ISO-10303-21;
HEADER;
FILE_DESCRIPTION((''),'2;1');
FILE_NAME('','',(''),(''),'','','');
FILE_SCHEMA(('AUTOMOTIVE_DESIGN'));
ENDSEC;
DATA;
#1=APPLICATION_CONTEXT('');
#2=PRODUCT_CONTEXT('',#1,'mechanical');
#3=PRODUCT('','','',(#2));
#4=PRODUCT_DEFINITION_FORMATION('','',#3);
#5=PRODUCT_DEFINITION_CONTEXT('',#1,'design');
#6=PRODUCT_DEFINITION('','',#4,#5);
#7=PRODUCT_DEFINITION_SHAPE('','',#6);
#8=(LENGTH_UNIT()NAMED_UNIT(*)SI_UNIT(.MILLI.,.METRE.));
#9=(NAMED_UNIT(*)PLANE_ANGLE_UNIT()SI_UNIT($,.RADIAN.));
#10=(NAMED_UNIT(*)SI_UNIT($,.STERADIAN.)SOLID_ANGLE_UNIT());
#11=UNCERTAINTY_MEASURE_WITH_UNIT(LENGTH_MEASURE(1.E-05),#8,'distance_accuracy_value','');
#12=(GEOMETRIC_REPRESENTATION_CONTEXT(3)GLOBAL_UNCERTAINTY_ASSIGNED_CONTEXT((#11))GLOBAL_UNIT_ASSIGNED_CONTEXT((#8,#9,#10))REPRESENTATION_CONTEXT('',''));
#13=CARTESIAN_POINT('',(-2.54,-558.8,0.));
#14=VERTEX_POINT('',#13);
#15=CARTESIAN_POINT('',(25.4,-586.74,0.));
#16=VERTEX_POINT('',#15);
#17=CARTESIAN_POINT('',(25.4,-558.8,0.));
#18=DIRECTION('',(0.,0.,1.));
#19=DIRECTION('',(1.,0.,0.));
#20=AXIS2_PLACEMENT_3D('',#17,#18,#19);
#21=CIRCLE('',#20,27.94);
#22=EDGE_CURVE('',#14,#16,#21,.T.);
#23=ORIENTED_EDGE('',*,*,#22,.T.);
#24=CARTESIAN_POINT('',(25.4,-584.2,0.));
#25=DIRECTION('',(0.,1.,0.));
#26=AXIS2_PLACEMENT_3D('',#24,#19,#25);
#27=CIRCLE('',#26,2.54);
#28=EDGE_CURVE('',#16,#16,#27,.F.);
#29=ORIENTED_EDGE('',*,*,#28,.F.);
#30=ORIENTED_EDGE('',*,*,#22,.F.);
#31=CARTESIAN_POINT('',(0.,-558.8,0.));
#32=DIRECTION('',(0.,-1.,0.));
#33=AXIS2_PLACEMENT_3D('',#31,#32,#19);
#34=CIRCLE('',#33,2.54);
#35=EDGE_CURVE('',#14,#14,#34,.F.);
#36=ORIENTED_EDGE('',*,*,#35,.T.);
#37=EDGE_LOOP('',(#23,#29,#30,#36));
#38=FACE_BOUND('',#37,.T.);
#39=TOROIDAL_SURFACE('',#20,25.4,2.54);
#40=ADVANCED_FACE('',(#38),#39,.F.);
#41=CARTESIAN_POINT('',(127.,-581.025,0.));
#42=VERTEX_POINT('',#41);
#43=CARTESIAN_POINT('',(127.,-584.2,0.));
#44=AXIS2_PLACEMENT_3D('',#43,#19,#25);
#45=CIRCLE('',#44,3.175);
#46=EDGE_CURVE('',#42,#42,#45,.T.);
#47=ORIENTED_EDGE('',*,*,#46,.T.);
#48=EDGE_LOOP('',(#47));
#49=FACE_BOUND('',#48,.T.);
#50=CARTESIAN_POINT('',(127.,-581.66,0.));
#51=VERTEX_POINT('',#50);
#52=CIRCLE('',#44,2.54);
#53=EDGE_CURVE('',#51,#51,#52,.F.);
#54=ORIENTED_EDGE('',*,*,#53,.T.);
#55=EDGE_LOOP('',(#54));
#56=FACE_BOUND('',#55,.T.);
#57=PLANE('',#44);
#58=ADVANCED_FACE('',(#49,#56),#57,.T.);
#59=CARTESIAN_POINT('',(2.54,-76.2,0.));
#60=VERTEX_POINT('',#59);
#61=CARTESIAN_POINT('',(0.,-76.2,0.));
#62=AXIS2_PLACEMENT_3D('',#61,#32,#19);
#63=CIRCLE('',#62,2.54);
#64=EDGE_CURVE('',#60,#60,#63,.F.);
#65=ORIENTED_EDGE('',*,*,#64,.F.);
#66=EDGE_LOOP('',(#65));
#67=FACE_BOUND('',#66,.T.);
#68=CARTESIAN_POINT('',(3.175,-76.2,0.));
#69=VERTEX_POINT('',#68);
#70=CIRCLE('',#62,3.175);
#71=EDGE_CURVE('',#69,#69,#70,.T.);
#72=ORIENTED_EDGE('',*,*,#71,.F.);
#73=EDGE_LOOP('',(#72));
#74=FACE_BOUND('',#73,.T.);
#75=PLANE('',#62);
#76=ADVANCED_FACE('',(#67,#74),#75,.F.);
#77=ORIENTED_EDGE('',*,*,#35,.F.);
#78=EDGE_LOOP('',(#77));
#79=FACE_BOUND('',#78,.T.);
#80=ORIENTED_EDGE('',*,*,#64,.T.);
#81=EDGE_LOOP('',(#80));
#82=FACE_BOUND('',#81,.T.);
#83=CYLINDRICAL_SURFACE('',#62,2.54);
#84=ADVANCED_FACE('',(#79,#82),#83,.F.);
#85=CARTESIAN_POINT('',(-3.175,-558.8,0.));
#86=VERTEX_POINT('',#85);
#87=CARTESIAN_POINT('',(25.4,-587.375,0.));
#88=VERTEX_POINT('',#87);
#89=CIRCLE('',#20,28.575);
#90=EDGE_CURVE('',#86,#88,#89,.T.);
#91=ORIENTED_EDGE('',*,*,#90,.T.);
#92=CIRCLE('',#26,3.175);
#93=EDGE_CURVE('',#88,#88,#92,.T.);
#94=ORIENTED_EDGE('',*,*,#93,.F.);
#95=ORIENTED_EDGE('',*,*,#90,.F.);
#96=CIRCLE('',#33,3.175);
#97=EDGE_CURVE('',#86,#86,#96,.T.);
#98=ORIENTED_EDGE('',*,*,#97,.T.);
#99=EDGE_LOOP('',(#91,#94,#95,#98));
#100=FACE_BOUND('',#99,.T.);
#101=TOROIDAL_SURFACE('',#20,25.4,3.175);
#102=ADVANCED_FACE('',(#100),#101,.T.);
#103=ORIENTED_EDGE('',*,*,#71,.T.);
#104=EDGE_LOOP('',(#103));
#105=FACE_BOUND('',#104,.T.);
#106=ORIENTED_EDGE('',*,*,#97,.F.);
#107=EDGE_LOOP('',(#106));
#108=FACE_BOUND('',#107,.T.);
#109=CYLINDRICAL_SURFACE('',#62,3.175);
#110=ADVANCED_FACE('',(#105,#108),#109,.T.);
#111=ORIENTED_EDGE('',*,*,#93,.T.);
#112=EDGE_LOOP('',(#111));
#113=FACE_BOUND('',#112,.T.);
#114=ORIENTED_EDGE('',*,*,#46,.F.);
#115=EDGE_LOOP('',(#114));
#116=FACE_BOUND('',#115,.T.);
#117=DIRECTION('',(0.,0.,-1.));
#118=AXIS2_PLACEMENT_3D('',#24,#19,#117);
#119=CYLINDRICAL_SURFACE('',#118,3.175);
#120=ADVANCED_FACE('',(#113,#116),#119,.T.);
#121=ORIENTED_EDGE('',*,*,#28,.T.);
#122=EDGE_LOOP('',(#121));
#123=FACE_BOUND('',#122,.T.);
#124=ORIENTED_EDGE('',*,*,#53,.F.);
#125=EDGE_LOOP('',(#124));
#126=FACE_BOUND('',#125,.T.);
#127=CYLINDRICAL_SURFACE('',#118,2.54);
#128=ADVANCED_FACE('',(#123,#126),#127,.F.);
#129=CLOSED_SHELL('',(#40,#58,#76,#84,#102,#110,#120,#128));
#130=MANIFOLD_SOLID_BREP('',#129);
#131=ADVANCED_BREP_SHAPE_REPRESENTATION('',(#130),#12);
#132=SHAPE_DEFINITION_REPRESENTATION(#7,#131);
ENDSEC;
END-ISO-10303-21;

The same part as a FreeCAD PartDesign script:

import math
import FreeCAD as App
import Part
import Sketcher
from FreeCAD import Vector
Q = App.Units.Quantity

doc = App.newDocument("Part")
body = doc.addObject("PartDesign::Body", "Body")

sketch1 = doc.addObject("Sketcher::SketchObject", "Sketch")
body.addObject(sketch1)
sketch1.AttachmentSupport = (doc.XZ_Plane, [""])
sketch1.MapMode = "FlatFace"
sketch1.AttachmentOffset = App.Placement(Vector(0, 0, 3 * 25.4), App.Rotation())
sketch1.addGeometry(Part.Circle(Vector(0, 0, 0), Vector(0, 0, 1), 3.2), False)
sketch1.addGeometry(Part.Circle(Vector(0, 0, 0), Vector(0, 0, 1), 2.5), False)
sketch1.addConstraint(Sketcher.Constraint("Coincident", 0, 3, -1, 1))
sketch1.addConstraint(Sketcher.Constraint("Coincident", 1, 3, -1, 1))
sketch1.addConstraint(Sketcher.Constraint("Diameter", 1, Q("0.2 in")))
sketch1.addConstraint(Sketcher.Constraint("Diameter", 0, Q("0.25 in")))

sketch2 = doc.addObject("Sketcher::SketchObject", "Sketch001")
body.addObject(sketch2)
sketch2.AttachmentSupport = (doc.XY_Plane, [""])
sketch2.MapMode = "FlatFace"
sketch2.addGeometry(Part.LineSegment(Vector(0, -76, 0), Vector(0, -559, 0)), False)
sketch2.addGeometry(Part.ArcOfCircle(Part.Circle(Vector(25, -559, 0), Vector(0, 0, 1), 25), math.radians(180), math.radians(270)), False)
sketch2.addGeometry(Part.LineSegment(Vector(25, -584, 0), Vector(127, -584, 0)), False)
sketch2.addConstraint(Sketcher.Constraint("Tangent", 0, 2, 1, 1))
sketch2.addConstraint(Sketcher.Constraint("Tangent", 1, 2, 2, 1))
sketch2.addConstraint(Sketcher.Constraint("Vertical", 0))
sketch2.addConstraint(Sketcher.Constraint("Horizontal", 2))
sketch2.addConstraint(Sketcher.Constraint("PointOnObject", 0, 1, -2))
sketch2.addConstraint(Sketcher.Constraint("Radius", 1, Q("1 in")))
sketch2.addConstraint(Sketcher.Constraint("DistanceX", 2, 1, 2, 2, Q("4 in")))
sketch2.addConstraint(Sketcher.Constraint("DistanceY", 0, 2, 0, 1, Q("19 in")))
sketch2.addConstraint(Sketcher.Constraint("DistanceY", 1, 3, -1, 1, Q("22 in")))
doc.recompute()

additivepipe = doc.addObject("PartDesign::AdditivePipe", "AdditivePipe")
body.addObject(additivepipe)
additivepipe.Profile = sketch1
additivepipe.Spine = (sketch2, ["Edge1", "Edge2", "Edge3"])

doc.recompute()
